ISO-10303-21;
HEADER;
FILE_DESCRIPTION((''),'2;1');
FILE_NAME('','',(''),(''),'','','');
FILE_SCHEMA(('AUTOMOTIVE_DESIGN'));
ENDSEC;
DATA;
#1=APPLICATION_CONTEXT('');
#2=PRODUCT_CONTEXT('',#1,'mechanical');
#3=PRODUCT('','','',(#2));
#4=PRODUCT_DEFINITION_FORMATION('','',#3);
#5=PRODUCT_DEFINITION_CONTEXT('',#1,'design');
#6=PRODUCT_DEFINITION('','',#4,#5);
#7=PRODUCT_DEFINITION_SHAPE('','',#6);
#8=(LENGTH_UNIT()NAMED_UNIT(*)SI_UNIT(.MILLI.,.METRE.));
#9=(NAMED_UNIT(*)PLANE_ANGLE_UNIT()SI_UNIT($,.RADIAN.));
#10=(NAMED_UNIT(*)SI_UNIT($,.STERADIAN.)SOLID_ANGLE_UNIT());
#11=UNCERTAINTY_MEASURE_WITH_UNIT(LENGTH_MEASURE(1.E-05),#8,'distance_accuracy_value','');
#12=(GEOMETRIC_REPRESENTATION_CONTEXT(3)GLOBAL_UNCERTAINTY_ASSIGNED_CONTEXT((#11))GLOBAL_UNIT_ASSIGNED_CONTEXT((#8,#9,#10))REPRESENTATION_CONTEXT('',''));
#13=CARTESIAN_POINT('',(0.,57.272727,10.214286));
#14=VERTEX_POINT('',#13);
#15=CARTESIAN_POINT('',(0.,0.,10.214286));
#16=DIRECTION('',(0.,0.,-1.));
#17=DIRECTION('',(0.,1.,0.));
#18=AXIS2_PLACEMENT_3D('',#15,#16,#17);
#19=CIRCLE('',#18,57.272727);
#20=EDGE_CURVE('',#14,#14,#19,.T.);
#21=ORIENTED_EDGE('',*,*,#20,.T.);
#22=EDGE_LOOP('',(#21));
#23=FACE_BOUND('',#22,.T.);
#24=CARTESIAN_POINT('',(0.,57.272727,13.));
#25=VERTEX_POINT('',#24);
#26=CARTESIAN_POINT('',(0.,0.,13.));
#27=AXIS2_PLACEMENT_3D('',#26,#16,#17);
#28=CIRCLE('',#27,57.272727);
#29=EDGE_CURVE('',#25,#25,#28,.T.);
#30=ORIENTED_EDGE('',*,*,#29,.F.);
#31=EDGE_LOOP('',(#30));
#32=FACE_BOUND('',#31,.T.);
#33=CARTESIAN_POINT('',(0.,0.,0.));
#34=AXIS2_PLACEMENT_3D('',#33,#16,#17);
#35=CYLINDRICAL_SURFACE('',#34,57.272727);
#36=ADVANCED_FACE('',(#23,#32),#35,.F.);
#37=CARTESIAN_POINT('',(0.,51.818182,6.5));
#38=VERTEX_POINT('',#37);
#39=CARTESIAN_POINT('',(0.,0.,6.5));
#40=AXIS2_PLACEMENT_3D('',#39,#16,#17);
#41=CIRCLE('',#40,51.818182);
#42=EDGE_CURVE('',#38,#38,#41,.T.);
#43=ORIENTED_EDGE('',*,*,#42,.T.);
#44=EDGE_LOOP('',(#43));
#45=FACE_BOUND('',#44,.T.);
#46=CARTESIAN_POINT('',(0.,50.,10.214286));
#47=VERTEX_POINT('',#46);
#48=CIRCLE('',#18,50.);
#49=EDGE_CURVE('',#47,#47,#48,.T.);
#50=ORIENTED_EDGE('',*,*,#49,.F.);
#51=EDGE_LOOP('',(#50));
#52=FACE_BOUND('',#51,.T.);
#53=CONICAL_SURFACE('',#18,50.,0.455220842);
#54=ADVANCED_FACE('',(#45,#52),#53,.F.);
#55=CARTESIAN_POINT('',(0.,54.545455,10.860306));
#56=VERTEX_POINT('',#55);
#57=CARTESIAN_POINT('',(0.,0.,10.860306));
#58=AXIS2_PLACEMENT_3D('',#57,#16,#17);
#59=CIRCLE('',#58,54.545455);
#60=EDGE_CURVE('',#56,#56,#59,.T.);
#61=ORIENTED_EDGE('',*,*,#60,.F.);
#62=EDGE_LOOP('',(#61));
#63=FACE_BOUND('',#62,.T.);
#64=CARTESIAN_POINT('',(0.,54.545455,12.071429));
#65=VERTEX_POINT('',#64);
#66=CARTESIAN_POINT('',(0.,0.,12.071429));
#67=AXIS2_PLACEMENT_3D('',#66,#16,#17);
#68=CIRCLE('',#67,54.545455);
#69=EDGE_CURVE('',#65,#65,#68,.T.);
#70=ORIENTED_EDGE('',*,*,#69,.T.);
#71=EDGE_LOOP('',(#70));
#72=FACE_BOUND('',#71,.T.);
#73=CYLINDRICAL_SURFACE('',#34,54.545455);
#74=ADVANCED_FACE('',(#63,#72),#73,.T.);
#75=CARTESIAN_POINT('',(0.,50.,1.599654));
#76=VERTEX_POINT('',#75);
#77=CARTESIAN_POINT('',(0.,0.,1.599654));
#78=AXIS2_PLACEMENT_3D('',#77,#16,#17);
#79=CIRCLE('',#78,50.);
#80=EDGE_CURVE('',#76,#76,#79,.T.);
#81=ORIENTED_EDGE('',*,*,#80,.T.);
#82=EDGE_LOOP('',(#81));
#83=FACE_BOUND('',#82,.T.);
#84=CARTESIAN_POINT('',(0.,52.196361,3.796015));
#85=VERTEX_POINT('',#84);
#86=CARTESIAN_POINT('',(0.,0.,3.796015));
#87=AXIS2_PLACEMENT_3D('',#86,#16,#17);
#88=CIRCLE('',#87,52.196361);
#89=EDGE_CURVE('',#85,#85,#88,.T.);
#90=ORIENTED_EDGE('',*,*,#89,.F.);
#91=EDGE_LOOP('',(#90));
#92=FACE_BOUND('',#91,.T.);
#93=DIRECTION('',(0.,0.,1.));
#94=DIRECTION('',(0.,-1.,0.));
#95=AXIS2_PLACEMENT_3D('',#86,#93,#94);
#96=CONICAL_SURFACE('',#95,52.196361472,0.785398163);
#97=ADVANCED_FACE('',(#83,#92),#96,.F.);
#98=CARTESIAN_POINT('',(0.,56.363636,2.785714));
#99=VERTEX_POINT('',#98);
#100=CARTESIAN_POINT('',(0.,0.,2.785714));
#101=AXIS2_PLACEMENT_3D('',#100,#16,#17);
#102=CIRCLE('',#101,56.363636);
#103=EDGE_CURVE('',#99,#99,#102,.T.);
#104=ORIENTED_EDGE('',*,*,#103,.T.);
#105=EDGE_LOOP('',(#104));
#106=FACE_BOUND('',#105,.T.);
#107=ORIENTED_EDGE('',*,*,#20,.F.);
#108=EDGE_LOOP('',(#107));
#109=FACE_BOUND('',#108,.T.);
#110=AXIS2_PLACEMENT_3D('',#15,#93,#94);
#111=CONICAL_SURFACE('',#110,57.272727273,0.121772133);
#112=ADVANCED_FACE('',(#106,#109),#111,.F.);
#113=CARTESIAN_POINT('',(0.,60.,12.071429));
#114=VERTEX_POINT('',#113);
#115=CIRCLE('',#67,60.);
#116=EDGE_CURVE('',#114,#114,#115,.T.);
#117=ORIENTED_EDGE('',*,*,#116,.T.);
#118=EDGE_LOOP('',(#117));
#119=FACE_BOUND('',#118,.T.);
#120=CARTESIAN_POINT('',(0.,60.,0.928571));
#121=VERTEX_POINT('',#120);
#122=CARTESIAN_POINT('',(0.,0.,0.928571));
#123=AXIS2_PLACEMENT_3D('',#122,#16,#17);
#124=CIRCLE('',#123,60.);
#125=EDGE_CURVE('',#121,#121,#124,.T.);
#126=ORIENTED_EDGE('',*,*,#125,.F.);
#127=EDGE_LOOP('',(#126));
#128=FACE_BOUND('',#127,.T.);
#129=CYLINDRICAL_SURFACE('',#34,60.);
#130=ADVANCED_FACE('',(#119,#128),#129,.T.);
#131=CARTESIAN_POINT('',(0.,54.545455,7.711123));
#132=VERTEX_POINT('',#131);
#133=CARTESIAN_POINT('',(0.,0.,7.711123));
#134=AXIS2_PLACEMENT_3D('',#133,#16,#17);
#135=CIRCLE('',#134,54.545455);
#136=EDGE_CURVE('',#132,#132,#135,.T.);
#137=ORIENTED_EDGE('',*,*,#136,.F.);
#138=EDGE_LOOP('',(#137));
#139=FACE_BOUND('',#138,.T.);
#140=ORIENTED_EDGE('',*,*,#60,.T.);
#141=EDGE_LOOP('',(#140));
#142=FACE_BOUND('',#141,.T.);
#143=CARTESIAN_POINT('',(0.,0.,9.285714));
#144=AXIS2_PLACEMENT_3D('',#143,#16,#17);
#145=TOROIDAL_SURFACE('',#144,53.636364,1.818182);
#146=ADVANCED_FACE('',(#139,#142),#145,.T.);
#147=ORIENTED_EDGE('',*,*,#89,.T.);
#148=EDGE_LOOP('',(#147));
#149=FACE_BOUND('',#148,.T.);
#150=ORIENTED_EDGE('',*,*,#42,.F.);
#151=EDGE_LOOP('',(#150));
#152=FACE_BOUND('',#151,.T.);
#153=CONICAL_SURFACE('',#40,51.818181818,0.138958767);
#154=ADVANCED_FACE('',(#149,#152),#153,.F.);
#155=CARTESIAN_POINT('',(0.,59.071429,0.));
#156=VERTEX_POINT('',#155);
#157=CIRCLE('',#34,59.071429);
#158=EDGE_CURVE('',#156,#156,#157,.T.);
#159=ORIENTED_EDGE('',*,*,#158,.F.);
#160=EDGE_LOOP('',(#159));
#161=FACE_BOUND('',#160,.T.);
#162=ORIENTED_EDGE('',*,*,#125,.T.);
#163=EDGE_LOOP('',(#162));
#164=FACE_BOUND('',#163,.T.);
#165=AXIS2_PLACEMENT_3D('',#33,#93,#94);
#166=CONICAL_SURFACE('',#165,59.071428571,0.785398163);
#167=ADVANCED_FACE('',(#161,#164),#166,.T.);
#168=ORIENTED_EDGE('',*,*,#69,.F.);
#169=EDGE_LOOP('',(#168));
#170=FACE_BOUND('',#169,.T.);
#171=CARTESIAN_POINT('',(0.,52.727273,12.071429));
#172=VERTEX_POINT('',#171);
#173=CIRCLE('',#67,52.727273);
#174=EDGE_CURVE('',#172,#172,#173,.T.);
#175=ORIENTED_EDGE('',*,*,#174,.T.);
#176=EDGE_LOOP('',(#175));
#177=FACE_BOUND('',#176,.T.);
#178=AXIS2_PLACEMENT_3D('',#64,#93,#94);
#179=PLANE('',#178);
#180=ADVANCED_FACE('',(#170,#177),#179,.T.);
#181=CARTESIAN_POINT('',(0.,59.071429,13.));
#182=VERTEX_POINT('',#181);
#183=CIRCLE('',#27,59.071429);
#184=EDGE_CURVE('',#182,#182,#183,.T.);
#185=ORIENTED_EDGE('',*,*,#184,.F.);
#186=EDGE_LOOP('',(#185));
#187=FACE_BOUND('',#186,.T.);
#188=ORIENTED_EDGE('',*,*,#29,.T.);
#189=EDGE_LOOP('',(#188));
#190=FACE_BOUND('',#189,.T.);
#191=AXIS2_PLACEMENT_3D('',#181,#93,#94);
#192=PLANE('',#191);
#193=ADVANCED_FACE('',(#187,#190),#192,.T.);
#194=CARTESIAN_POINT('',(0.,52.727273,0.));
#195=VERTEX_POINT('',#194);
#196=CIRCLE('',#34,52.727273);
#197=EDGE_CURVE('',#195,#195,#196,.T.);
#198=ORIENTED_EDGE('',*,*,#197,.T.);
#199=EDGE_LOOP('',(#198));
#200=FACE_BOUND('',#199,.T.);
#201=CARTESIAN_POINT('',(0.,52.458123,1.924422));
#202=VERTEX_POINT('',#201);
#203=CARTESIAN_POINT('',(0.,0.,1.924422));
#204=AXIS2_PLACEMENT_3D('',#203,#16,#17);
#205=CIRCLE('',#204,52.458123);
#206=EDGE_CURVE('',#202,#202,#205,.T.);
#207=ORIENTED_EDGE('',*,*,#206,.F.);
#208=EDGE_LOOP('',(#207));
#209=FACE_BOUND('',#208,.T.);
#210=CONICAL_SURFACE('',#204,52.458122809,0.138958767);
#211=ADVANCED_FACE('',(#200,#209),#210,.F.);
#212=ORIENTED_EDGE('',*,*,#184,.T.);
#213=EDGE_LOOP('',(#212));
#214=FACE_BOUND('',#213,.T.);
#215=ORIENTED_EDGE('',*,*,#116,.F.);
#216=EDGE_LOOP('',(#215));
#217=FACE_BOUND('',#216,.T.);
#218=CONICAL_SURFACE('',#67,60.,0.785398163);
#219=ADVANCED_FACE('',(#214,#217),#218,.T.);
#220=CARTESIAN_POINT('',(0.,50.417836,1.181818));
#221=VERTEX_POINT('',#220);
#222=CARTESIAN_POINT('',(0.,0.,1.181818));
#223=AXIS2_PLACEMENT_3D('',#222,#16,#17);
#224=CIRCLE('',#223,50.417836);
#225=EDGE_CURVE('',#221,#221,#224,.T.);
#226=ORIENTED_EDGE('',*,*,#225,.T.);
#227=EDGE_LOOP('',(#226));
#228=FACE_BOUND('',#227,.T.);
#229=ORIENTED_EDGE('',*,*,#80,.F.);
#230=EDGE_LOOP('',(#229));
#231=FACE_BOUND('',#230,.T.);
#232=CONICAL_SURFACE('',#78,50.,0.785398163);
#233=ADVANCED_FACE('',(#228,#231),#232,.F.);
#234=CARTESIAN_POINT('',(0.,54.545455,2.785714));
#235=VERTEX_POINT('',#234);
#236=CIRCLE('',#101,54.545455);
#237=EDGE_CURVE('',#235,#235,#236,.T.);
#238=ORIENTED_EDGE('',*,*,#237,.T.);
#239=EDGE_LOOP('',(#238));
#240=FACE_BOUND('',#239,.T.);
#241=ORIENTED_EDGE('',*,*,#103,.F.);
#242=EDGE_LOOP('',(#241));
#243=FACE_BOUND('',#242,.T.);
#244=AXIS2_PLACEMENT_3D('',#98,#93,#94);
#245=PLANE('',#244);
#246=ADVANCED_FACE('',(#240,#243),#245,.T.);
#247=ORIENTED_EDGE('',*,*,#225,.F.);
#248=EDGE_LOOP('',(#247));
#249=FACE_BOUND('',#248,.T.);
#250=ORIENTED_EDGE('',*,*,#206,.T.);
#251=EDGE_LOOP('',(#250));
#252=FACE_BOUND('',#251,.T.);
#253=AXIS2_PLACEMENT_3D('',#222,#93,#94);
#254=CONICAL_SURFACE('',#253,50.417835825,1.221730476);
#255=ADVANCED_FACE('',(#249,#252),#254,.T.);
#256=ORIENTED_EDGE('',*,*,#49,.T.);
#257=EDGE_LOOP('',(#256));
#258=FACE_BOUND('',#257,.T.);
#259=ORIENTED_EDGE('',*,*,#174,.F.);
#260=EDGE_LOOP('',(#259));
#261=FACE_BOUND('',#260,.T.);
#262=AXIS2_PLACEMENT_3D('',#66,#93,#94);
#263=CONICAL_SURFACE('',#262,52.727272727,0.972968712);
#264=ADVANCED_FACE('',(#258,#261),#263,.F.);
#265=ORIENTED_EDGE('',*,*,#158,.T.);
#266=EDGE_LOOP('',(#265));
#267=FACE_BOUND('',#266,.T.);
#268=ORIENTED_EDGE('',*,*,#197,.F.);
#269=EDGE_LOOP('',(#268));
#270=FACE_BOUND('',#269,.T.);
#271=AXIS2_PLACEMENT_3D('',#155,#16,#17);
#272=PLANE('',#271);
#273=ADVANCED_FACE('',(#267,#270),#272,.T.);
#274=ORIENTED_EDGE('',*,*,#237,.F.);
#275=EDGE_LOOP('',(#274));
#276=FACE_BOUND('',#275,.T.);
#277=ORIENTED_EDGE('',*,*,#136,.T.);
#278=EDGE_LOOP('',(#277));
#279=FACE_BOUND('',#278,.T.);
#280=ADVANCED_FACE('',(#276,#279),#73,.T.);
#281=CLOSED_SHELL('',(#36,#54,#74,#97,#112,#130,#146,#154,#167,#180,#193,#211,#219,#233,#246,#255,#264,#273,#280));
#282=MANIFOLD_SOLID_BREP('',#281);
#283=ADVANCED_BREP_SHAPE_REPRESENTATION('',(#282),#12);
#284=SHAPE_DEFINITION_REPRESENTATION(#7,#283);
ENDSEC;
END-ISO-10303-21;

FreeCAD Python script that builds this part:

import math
import FreeCAD as App
import Part
import Sketcher
Q = App.Units.Quantity

doc = App.newDocument("Part")
body = doc.addObject("PartDesign::Body", "Body")

# Sketch on YZ plane
sketch1 = body.newObject("Sketcher::SketchObject", "Sketch")
sketch1.AttachmentSupport = (doc.getObject("YZ_Plane"), [""])
sketch1.MapMode = "FlatFace"
sketch1.addGeometry([
    Part.LineSegment(App.Vector(57.272727, 10.214286, 0), App.Vector(56.363636, 2.785714, 0)),  # 0
    Part.LineSegment(App.Vector(56.363636, 2.785714, 0), App.Vector(54.545455, 2.785714, 0)),  # 1
    Part.LineSegment(App.Vector(54.545455, 2.785714, 0), App.Vector(54.545455, 7.711123, 0)),  # 2
    Part.ArcOfCircle(Part.Circle(App.Vector(53.636364, 9.285714, 0), App.Vector(0, 0, 1), 1.818182), math.radians(-60), math.radians(60)),  # 3
    Part.LineSegment(App.Vector(54.545455, 10.860306, 0), App.Vector(54.545455, 12.071429, 0)),  # 4
    Part.LineSegment(App.Vector(54.545455, 12.071429, 0), App.Vector(52.727273, 12.071429, 0)),  # 5
    Part.LineSegment(App.Vector(52.727273, 12.071429, 0), App.Vector(50, 10.214286, 0)),  # 6
    Part.LineSegment(App.Vector(50, 10.214286, 0), App.Vector(51.818182, 6.5, 0)),  # 7
    Part.LineSegment(App.Vector(51.818182, 6.5, 0), App.Vector(52.196361, 3.796015, 0)),  # 8
    Part.LineSegment(App.Vector(52.196361, 3.796015, 0), App.Vector(50, 1.599654, 0)),  # 9
    Part.LineSegment(App.Vector(50, 1.599654, 0), App.Vector(50.417836, 1.181818, 0)),  # 10
    Part.LineSegment(App.Vector(50.417836, 1.181818, 0), App.Vector(52.458123, 1.924422, 0)),  # 11
    Part.LineSegment(App.Vector(52.458123, 1.924422, 0), App.Vector(52.727273, 0, 0)),  # 12
    Part.LineSegment(App.Vector(52.727273, 0, 0), App.Vector(59.071429, 0, 0)),  # 13
    Part.LineSegment(App.Vector(59.071429, 0, 0), App.Vector(60, 0.928571, 0)),  # 14
    Part.LineSegment(App.Vector(60, 0.928571, 0), App.Vector(60, 12.071429, 0)),  # 15
    Part.LineSegment(App.Vector(60, 12.071429, 0), App.Vector(59.071429, 13, 0)),  # 16
    Part.LineSegment(App.Vector(59.071429, 13, 0), App.Vector(57.272727, 13, 0)),  # 17
    Part.LineSegment(App.Vector(57.272727, 13, 0), App.Vector(57.272727, 10.214286, 0)),  # 18
], False)
sketch1.addConstraint([
    Sketcher.Constraint("Coincident", 0, 2, 1, 1),
    Sketcher.Constraint("Coincident", 1, 2, 2, 1),
    Sketcher.Constraint("Coincident", 2, 2, 3, 1),
    Sketcher.Constraint("Coincident", 3, 2, 4, 1),
    Sketcher.Constraint("Coincident", 4, 2, 5, 1),
    Sketcher.Constraint("Coincident", 5, 2, 6, 1),
    Sketcher.Constraint("Coincident", 6, 2, 7, 1),
    Sketcher.Constraint("Coincident", 7, 2, 8, 1),
    Sketcher.Constraint("Coincident", 8, 2, 9, 1),
    Sketcher.Constraint("Coincident", 9, 2, 10, 1),
    Sketcher.Constraint("Coincident", 10, 2, 11, 1),
    Sketcher.Constraint("Coincident", 11, 2, 12, 1),
    Sketcher.Constraint("Coincident", 12, 2, 13, 1),
    Sketcher.Constraint("Coincident", 13, 2, 14, 1),
    Sketcher.Constraint("Coincident", 14, 2, 15, 1),
    Sketcher.Constraint("Coincident", 15, 2, 16, 1),
    Sketcher.Constraint("Coincident", 16, 2, 17, 1),
    Sketcher.Constraint("Coincident", 17, 2, 18, 1),
    Sketcher.Constraint("Coincident", 18, 2, 0, 1),
    Sketcher.Constraint("Horizontal", 1),
    Sketcher.Constraint("Vertical", 2),
    Sketcher.Constraint("Vertical", 4),
    Sketcher.Constraint("Horizontal", 5),
    Sketcher.Constraint("Horizontal", 13),
    Sketcher.Constraint("Vertical", 15),
    Sketcher.Constraint("Horizontal", 17),
    Sketcher.Constraint("Vertical", 18),
    Sketcher.Constraint("PointOnObject", 12, 2, -1),
    Sketcher.Constraint("Perpendicular", 9, 10),
    Sketcher.Constraint("Parallel", 8, 12),
    Sketcher.Constraint("Perpendicular", 10, 14),
    Sketcher.Constraint("Perpendicular", 14, 16),
    Sketcher.Constraint("Horizontal", 5, 2, 15, 2),
    Sketcher.Constraint("Horizontal", 6, 2, 18, 2),
    Sketcher.Constraint("Vertical", 2, 2, 3, 2),
    Sketcher.Constraint("Vertical", 6, 2, 9, 2),
    Sketcher.Constraint("Vertical", 5, 2, 12, 2),
    Sketcher.Constraint("Vertical", 13, 2, 16, 2),
    Sketcher.Constraint("Equal", 1, 5),
    Sketcher.Constraint("Equal", 14, 16),
    Sketcher.Constraint("Angle", 11, Q("20 deg")),
    Sketcher.Constraint("DistanceX", -1, 1, 6, 2, 50.0),
    Sketcher.Constraint("DistanceX", -1, 1, 14, 2, 60.0),
    Sketcher.Constraint("DistanceY", -1, 1, 16, 2, 13.0),
    Sketcher.Constraint("DistanceY", -1, 1, 7, 2, 6.5),
    Sketcher.Constraint("DistanceY", 0, 2, 3, 3, 6.5),
    Sketcher.Constraint("Radius", 3, 1.818182),
    Sketcher.Constraint("DistanceX", 17, 2, 17, 1, 1.798701),
    Sketcher.Constraint("Distance", 14, 1.313198),
    Sketcher.Constraint("DistanceX", 1, 2, 1, 1, 1.818182),
    Sketcher.Constraint("DistanceY", 2, 1, 2, 2, 4.925408),
    Sketcher.Constraint("DistanceY", 1, 2, 8, 2, 1.010301),
    Sketcher.Constraint("DistanceX", 10, 2, 0, 2, 5.945801),
    Sketcher.Constraint("Distance", 0, 7.483991),
    Sketcher.Constraint("Distance", 7, 4.135421),
    Sketcher.Constraint("Distance", 10, 0.590909),
    Sketcher.Constraint("Distance", 11, 2.171228),
    Sketcher.Constraint("DistanceY", 4, 1, 4, 2, 1.211123),
])
revolution = body.newObject("PartDesign::Revolution", "Revolution")
revolution.Profile = sketch1
revolution.ReferenceAxis = (sketch1, ["V_Axis"])
revolution.Angle = 360

doc.recompute()
